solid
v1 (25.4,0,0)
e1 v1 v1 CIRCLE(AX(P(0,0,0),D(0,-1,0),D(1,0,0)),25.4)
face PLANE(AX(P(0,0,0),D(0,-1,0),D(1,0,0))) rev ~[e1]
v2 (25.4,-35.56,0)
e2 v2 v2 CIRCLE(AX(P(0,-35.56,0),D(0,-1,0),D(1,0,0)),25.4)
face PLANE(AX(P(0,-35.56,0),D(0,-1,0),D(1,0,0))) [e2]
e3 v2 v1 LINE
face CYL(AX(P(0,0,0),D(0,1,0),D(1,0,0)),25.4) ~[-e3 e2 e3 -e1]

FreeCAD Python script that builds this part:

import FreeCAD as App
import Part
import Sketcher

V = App.Vector
Q = App.Units.Quantity

doc = App.newDocument("Part")
body = doc.addObject("PartDesign::Body", "Body")

# Sketch on XZ plane
sketch1 = body.newObject("Sketcher::SketchObject", "Sketch")
sketch1.AttachmentSupport = (doc.getObject("XZ_Plane"), [""])
sketch1.MapMode = "FlatFace"
sketch1.addGeometry(Part.Circle(V(0, 0, 0), V(0, 0, 1), 25), False)
sketch1.addConstraint([
    Sketcher.Constraint("Coincident", 0, 3, -1, 1),
    Sketcher.Constraint("Diameter", 0, Q("2 in")),
])
pad1 = body.newObject("PartDesign::Pad", "Pad")
pad1.Profile = sketch1
pad1.Length = Q("1 in")

# Sketch on XZ plane
sketch2 = body.newObject("Sketcher::SketchObject", "Sketch001")
sketch2.AttachmentSupport = (doc.getObject("XZ_Plane"), [""])
sketch2.MapMode = "FlatFace"
sketch2.addGeometry(Part.Circle(V(0, 0, 0), V(0, 0, 1), 25), False)
sketch2.addConstraint([
    Sketcher.Constraint("Coincident", 0, 3, -1, 1),
    Sketcher.Constraint("Diameter", 0, Q("2 in")),
])
pad2 = body.newObject("PartDesign::Pad", "Pad001")
pad2.Profile = sketch2
pad2.Length = Q("1.4 in")

doc.recompute()
